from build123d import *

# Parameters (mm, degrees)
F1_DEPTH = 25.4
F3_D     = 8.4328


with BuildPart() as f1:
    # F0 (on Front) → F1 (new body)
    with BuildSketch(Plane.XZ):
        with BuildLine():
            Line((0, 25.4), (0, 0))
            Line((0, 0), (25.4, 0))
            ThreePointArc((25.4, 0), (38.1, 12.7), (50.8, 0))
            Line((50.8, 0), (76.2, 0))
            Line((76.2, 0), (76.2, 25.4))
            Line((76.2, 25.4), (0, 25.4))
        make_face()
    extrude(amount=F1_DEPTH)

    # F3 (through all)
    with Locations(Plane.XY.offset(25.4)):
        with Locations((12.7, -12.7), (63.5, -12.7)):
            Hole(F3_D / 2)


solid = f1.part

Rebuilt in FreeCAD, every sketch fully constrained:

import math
import FreeCAD as App
import Part
import Sketcher
Q = App.Units.Quantity

doc = App.newDocument("Part")
body = doc.addObject("PartDesign::Body", "Body")

# Sketch on XZ plane
sketch1 = doc.addObject("Sketcher::SketchObject", "Sketch")
body.addObject(sketch1)
sketch1.AttachmentSupport = (doc.XZ_Plane, [""])
sketch1.MapMode = "FlatFace"
sketch1.addGeometry([
    Part.LineSegment(App.Vector(0, 25, 0), App.Vector(0, 0, 0)),  # 0
    Part.LineSegment(App.Vector(0, 0, 0), App.Vector(25, 0, 0)),  # 1
    Part.ArcOfCircle(Part.Circle(App.Vector(38, 0, 0), App.Vector(0, 0, 1), 13), math.radians(0), math.radians(180)),  # 2
    Part.LineSegment(App.Vector(51, 0, 0), App.Vector(76, 0, 0)),  # 3
    Part.LineSegment(App.Vector(76, 0, 0), App.Vector(76, 25, 0)),  # 4
    Part.LineSegment(App.Vector(76, 25, 0), App.Vector(0, 25, 0)),  # 5
], False)
sketch1.addConstraint([
    Sketcher.Constraint("Coincident", 0, 2, 1, 1),
    Sketcher.Constraint("Coincident", 1, 2, 2, 2),
    Sketcher.Constraint("Coincident", 2, 1, 3, 1),
    Sketcher.Constraint("Coincident", 3, 2, 4, 1),
    Sketcher.Constraint("Coincident", 4, 2, 5, 1),
    Sketcher.Constraint("Coincident", 5, 2, 0, 1),
    Sketcher.Constraint("Vertical", 0),
    Sketcher.Constraint("Horizontal", 1),
    Sketcher.Constraint("Horizontal", 3),
    Sketcher.Constraint("Vertical", 4),
    Sketcher.Constraint("Horizontal", 5),
    Sketcher.Constraint("Coincident", 0, 2, -1, 1),
    Sketcher.Constraint("PointOnObject", 2, 3, -1),
    Sketcher.Constraint("PointOnObject", 2, 1, -1),
    Sketcher.Constraint("Equal", 1, 3),
    Sketcher.Constraint("Equal", 3, 0),
    Sketcher.Constraint("Radius", 2, Q("0.5 in")),
    Sketcher.Constraint("DistanceX", 1, 1, 1, 2, Q("1 in")),
])
pad1 = doc.addObject("PartDesign::Pad", "Pad")
body.addObject(pad1)
pad1.Profile = sketch1
pad1.Length = Q("1 in")

# Sketch on XY plane
sketch2 = doc.addObject("Sketcher::SketchObject", "Sketch001")
body.addObject(sketch2)
sketch2.AttachmentSupport = (doc.XY_Plane, [""])
sketch2.MapMode = "FlatFace"
sketch2.AttachmentOffset = App.Placement(App.Vector(0, 0, 1 * 25.4), App.Rotation())
sketch2.addGeometry([
    Part.Circle(App.Vector(12.7, -12.7, 0), App.Vector(0, 0, 1), 4.2),
    Part.Circle(App.Vector(63.5, -12.7, 0), App.Vector(0, 0, 1), 4.2),
], False)
sketch2.addConstraint([
    Sketcher.Constraint("Equal", 0, 1),
    Sketcher.Constraint("Horizontal", 0, 3, 1, 3),
    Sketcher.Constraint("Diameter", 0, Q("0.332 in")),
    Sketcher.Constraint("DistanceX", 0, 3, 1, 3, Q("2 in")),
    Sketcher.Constraint("DistanceX", -1, 1, 0, 3, Q("0.5 in")),
    Sketcher.Constraint("DistanceY", 0, 3, -1, 1, Q("0.5 in")),
])
doc.recompute()
hole = doc.addObject("PartDesign::Hole", "Hole")
body.addObject(hole)
hole.Profile = sketch2
hole.ThreadType = "None"
hole.Diameter = Q("0.332 in")
hole.DepthType = "ThroughAll"

doc.recompute()
